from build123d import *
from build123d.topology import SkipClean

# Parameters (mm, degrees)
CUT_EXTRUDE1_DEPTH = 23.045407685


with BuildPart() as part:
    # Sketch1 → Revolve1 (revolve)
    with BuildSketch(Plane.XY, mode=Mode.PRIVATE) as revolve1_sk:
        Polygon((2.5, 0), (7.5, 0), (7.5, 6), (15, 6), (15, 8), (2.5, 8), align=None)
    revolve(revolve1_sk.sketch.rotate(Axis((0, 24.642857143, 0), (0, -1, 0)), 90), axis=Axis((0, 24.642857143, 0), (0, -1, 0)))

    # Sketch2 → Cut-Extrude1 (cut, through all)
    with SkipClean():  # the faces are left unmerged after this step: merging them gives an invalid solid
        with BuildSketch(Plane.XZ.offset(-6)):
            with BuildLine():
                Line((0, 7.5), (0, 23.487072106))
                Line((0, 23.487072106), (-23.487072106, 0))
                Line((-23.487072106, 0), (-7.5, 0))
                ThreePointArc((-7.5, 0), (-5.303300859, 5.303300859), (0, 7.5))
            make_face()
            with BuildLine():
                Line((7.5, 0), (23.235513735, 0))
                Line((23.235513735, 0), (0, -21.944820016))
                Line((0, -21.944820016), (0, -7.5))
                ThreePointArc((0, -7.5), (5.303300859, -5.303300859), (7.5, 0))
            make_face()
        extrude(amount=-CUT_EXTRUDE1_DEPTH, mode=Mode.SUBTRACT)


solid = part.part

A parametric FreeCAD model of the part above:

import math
import FreeCAD as App
import Part
import Sketcher


def add_polygon(sketch, points):
    """Adds a closed chain of lines whose ends are joined by coincident constraints."""
    first, n = sketch.GeometryCount, len(points)
    for a, b in zip(points, points[1:] + points[:1]):
        sketch.addGeometry(Part.LineSegment(App.Vector(*a, 0), App.Vector(*b, 0)), False)
    for i in range(n):
        sketch.addConstraint(Sketcher.Constraint("Coincident", first + i, 2, first + (i + 1) % n, 1))

doc = App.newDocument("Part")
body = doc.addObject("PartDesign::Body", "Body")

sketch1 = body.newObject("Sketcher::SketchObject", "Sketch")
sketch1.AttachmentSupport = (doc.getObject("XY_Plane"), [""])
sketch1.MapMode = "FlatFace"
add_polygon(sketch1, [(2.5, 0), (7.5, 0), (7.5, 6), (15, 6), (15, 8), (2.5, 8)])
sketch1.addConstraint(Sketcher.Constraint("Horizontal", 0))
sketch1.addConstraint(Sketcher.Constraint("Vertical", 1))
sketch1.addConstraint(Sketcher.Constraint("Horizontal", 2))
sketch1.addConstraint(Sketcher.Constraint("Vertical", 3))
sketch1.addConstraint(Sketcher.Constraint("Horizontal", 4))
sketch1.addConstraint(Sketcher.Constraint("Vertical", 5))
sketch1.addConstraint(Sketcher.Constraint("PointOnObject", 0, 2, -1))
sketch1.addConstraint(Sketcher.Constraint("DistanceX", 0, 1, 0, 2, 5.0))
sketch1.addConstraint(Sketcher.Constraint("DistanceY", 1, 1, 1, 2, 6.0))
sketch1.addConstraint(Sketcher.Constraint("DistanceY", 3, 1, 3, 2, 2.0))
sketch1.addConstraint(Sketcher.Constraint("DistanceX", 2, 1, 2, 2, 7.5))
sketch1.addConstraint(Sketcher.Constraint("DistanceX", -1, 1, 2, 2, 15.0))
revolution = body.newObject("PartDesign::Revolution", "Revolution")
revolution.Profile = sketch1
revolution.ReferenceAxis = (sketch1, ["V_Axis"])
revolution.Angle = 360

sketch2 = body.newObject("Sketcher::SketchObject", "Sketch001")
sketch2.AttachmentSupport = (doc.getObject("XZ_Plane"), [""])
sketch2.MapMode = "FlatFace"
sketch2.AttachmentOffset = App.Placement(App.Vector(0, 0, -6), App.Rotation())
sketch2.addGeometry(Part.LineSegment(App.Vector(0, 8, 0), App.Vector(0, 23, 0)), False)
sketch2.addGeometry(Part.LineSegment(App.Vector(0, 23, 0), App.Vector(-23, 0, 0)), False)
sketch2.addGeometry(Part.LineSegment(App.Vector(-23, 0, 0), App.Vector(-8, 0, 0)), False)
sketch2.addGeometry(Part.ArcOfCircle(Part.Circle(App.Vector(0, 0, 0), App.Vector(0, 0, 1), 8), math.radians(90), math.radians(180)), False)
sketch2.addGeometry(Part.LineSegment(App.Vector(23, 0, 0), App.Vector(8, 0, 0)), False)
sketch2.addGeometry(Part.ArcOfCircle(Part.Circle(App.Vector(0, 0, 0), App.Vector(0, 0, 1), 8), math.radians(-90), math.radians(0)), False)
sketch2.addGeometry(Part.LineSegment(App.Vector(0, -8, 0), App.Vector(0, -22, 0)), False)
sketch2.addGeometry(Part.LineSegment(App.Vector(0, -22, 0), App.Vector(23, 0, 0)), False)
sketch2.addConstraint(Sketcher.Constraint("Coincident", 0, 2, 1, 1))
sketch2.addConstraint(Sketcher.Constraint("Coincident", 1, 2, 2, 1))
sketch2.addConstraint(Sketcher.Constraint("Coincident", 2, 2, 3, 2))
sketch2.addConstraint(Sketcher.Constraint("Coincident", 3, 1, 0, 1))
sketch2.addConstraint(Sketcher.Constraint("Coincident", 4, 2, 5, 2))
sketch2.addConstraint(Sketcher.Constraint("Coincident", 5, 1, 6, 1))
sketch2.addConstraint(Sketcher.Constraint("Coincident", 6, 2, 7, 1))
sketch2.addConstraint(Sketcher.Constraint("Coincident", 7, 2, 4, 1))
sketch2.addConstraint(Sketcher.Constraint("Vertical", 0))
sketch2.addConstraint(Sketcher.Constraint("Horizontal", 2))
sketch2.addConstraint(Sketcher.Constraint("Horizontal", 4))
sketch2.addConstraint(Sketcher.Constraint("Vertical", 6))
sketch2.addConstraint(Sketcher.Constraint("Coincident", 3, 3, -1, 1))
sketch2.addConstraint(Sketcher.Constraint("Coincident", 5, 3, -1, 1))
sketch2.addConstraint(Sketcher.Constraint("Equal", 3, 5))
sketch2.addConstraint(Sketcher.Constraint("PointOnObject", 0, 2, -2))
sketch2.addConstraint(Sketcher.Constraint("PointOnObject", 1, 2, -1))
sketch2.addConstraint(Sketcher.Constraint("PointOnObject", 4, 2, -1))
sketch2.addConstraint(Sketcher.Constraint("PointOnObject", 5, 1, -2))
sketch2.addConstraint(Sketcher.Constraint("Equal", 2, 0))
sketch2.addConstraint(Sketcher.Constraint("Radius", 3, 7.5))
sketch2.addConstraint(Sketcher.Constraint("DistanceY", 6, 2, 6, 1, 14.44482))
sketch2.addConstraint(Sketcher.Constraint("DistanceX", 2, 1, 2, 2, 15.987072))
sketch2.addConstraint(Sketcher.Constraint("DistanceX", 4, 2, 4, 1, 15.735514))
pocket1 = body.newObject("PartDesign::Pocket", "Pocket")
pocket1.Profile = sketch2
pocket1.Type = "ThroughAll"

doc.recompute()
